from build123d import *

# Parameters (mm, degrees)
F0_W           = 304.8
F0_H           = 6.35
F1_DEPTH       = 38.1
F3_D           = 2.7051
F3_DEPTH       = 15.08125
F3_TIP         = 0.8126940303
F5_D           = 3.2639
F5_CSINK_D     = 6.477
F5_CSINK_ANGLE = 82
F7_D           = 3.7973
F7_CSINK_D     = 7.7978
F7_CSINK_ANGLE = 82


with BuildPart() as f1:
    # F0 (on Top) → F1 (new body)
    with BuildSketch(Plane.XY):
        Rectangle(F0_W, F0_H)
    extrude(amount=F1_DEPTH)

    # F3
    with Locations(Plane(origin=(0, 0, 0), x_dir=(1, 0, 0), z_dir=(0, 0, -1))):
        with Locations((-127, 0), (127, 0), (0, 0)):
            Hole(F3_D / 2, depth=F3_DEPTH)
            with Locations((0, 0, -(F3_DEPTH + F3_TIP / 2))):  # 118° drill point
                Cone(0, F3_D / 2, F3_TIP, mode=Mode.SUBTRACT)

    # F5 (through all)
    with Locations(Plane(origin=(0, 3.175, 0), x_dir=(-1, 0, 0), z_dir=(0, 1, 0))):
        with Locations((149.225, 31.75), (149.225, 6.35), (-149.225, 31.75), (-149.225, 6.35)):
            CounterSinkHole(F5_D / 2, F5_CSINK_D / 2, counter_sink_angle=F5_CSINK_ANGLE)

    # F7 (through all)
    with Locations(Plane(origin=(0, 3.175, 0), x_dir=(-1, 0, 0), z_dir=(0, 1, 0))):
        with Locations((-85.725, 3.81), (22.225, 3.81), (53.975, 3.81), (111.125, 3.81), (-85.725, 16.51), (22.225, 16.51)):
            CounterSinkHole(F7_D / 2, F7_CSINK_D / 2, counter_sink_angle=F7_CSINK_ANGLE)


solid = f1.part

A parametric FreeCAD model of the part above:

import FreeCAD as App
import Part
import Sketcher
from FreeCAD import Vector
Q = App.Units.Quantity

doc = App.newDocument("Part")
body = doc.addObject("PartDesign::Body", "Body")

# Sketch on XY plane
sketch1 = doc.addObject("Sketcher::SketchObject", "Sketch")
body.addObject(sketch1)
sketch1.AttachmentSupport = (doc.XY_Plane, [""])
sketch1.MapMode = "FlatFace"
sketch1.addGeometry([
    Part.LineSegment(Vector(-152.4, 3.175, 0), Vector(-152.4, -3.175, 0)),
    Part.LineSegment(Vector(-152.4, -3.175, 0), Vector(152.4, -3.175, 0)),
    Part.LineSegment(Vector(152.4, -3.175, 0), Vector(152.4, 3.175, 0)),
    Part.LineSegment(Vector(152.4, 3.175, 0), Vector(-152.4, 3.175, 0)),
], False)
sketch1.addConstraint([
    Sketcher.Constraint("Coincident", 0, 2, 1, 1),
    Sketcher.Constraint("Coincident", 1, 2, 2, 1),
    Sketcher.Constraint("Coincident", 2, 2, 3, 1),
    Sketcher.Constraint("Coincident", 3, 2, 0, 1),
    Sketcher.Constraint("Vertical", 0),
    Sketcher.Constraint("Horizontal", 1),
    Sketcher.Constraint("Vertical", 2),
    Sketcher.Constraint("Horizontal", 3),
    Sketcher.Constraint("Symmetric", 0, 2, 2, 2, -1, 1),
    Sketcher.Constraint("DistanceX", 1, 1, 1, 2, Q("12 in")),
    Sketcher.Constraint("DistanceY", 0, 2, 0, 1, Q("0.25 in")),
])
pad1 = doc.addObject("PartDesign::Pad", "Pad")
body.addObject(pad1)
pad1.Profile = sketch1
pad1.Length = Q("1.5 in")

# Sketch on XY plane
sketch2 = doc.addObject("Sketcher::SketchObject", "Sketch001")
body.addObject(sketch2)
sketch2.AttachmentSupport = (doc.XY_Plane, [""])
sketch2.MapMode = "FlatFace"
sketch2.addGeometry([
    Part.Circle(Vector(-127, 0, 0), Vector(0, 0, 1), 1.35255),
    Part.Circle(Vector(127, 0, 0), Vector(0, 0, 1), 1.35255),
    Part.Circle(Vector(0, 0, 0), Vector(0, 0, 1), 1.35255),
], False)
sketch2.addConstraint([
    Sketcher.Constraint("Coincident", 2, 3, -1, 1),
    Sketcher.Constraint("Equal", 0, 1),
    Sketcher.Constraint("Equal", 1, 2),
    Sketcher.Constraint("Symmetric", 0, 3, 1, 3, -1, 1),
    Sketcher.Constraint("PointOnObject", 0, 3, -1),
    Sketcher.Constraint("DistanceX", 0, 3, -1, 1, Q("5 in")),
    Sketcher.Constraint("Diameter", 0, Q("0.1065 in")),
])
doc.recompute()
hole = doc.addObject("PartDesign::Hole", "Hole")
body.addObject(hole)
hole.Profile = sketch2
hole.ThreadType = "None"
hole.Diameter = Q("0.1065 in")
hole.DepthType = "Dimension"
hole.Depth = Q("0.59375 in")
hole.DrillPoint = "Angled"
hole.DrillPointAngle = 118
hole.Reversed = True

# Sketch on XZ plane
sketch3 = doc.addObject("Sketcher::SketchObject", "Sketch002")
body.addObject(sketch3)
sketch3.AttachmentSupport = (doc.XZ_Plane, [""])
sketch3.MapMode = "FlatFace"
sketch3.AttachmentOffset = App.Placement(Vector(0, 0, -0.125 * 25.4), App.Rotation())
sketch3.addGeometry([
    Part.Circle(Vector(-149.225, 31.75, 0), Vector(0, 0, 1), 1.63195),
    Part.Circle(Vector(-149.225, 6.35, 0), Vector(0, 0, 1), 1.63195),
    Part.Circle(Vector(149.225, 31.75, 0), Vector(0, 0, 1), 1.63195),
    Part.Circle(Vector(149.225, 6.35, 0), Vector(0, 0, 1), 1.63195),
], False)
sketch3.addConstraint([
    Sketcher.Constraint("Equal", 0, 1),
    Sketcher.Constraint("Equal", 1, 2),
    Sketcher.Constraint("Equal", 2, 3),
    Sketcher.Constraint("Symmetric", 0, 3, 2, 3, -2),
    Sketcher.Constraint("Symmetric", 1, 3, 3, 3, -2),
    Sketcher.Constraint("Vertical", 0, 3, 1, 3),
    Sketcher.Constraint("DistanceY", 1, 3, 0, 3, Q("1 in")),
    Sketcher.Constraint("Diameter", 0, Q("0.1285 in")),
    Sketcher.Constraint("DistanceY", -1, 1, 0, 3, Q("1.25 in")),
    Sketcher.Constraint("DistanceX", 0, 3, 2, 3, Q("11.75 in")),
])
doc.recompute()
hole2 = doc.addObject("PartDesign::Hole", "Hole001")
body.addObject(hole2)
hole2.Profile = sketch3
hole2.ThreadType = "None"
hole2.Diameter = Q("0.1285 in")
hole2.DepthType = "ThroughAll"
hole2.HoleCutType = "Countersink"
hole2.HoleCutDiameter = Q("0.255 in")
hole2.HoleCutCountersinkAngle = 82
hole2.Reversed = True

# Sketch on XZ plane
sketch4 = doc.addObject("Sketcher::SketchObject", "Sketch003")
body.addObject(sketch4)
sketch4.AttachmentSupport = (doc.XZ_Plane, [""])
sketch4.MapMode = "FlatFace"
sketch4.AttachmentOffset = App.Placement(Vector(0, 0, -0.125 * 25.4), App.Rotation())
sketch4.addGeometry([
    Part.Circle(Vector(85.725, 3.81, 0), Vector(0, 0, 1), 1.89865),  # 0
    Part.Circle(Vector(-22.225, 3.81, 0), Vector(0, 0, 1), 1.89865),  # 1
    Part.Circle(Vector(-53.975, 3.81, 0), Vector(0, 0, 1), 1.89865),  # 2
    Part.Circle(Vector(-111.125, 3.81, 0), Vector(0, 0, 1), 1.89865),  # 3
    Part.Circle(Vector(85.725, 16.51, 0), Vector(0, 0, 1), 1.89865),  # 4
    Part.Circle(Vector(-22.225, 16.51, 0), Vector(0, 0, 1), 1.89865),  # 5
], False)
sketch4.addConstraint([
    Sketcher.Constraint("Equal", 0, 1),
    Sketcher.Constraint("Equal", 1, 2),
    Sketcher.Constraint("Equal", 2, 3),
    Sketcher.Constraint("Equal", 3, 4),
    Sketcher.Constraint("Equal", 4, 5),
    Sketcher.Constraint("Horizontal", 0, 3, 1, 3),
    Sketcher.Constraint("Horizontal", 1, 3, 2, 3),
    Sketcher.Constraint("Horizontal", 2, 3, 3, 3),
    Sketcher.Constraint("Horizontal", 4, 3, 5, 3),
    Sketcher.Constraint("Vertical", 0, 3, 4, 3),
    Sketcher.Constraint("Vertical", 1, 3, 5, 3),
    Sketcher.Constraint("Diameter", 0, Q("0.1495 in")),
    Sketcher.Constraint("DistanceX", 2, 3, 0, 3, Q("5.5 in")),
    Sketcher.Constraint("DistanceX", 3, 3, 1, 3, Q("3.5 in")),
    Sketcher.Constraint("DistanceY", 0, 3, 4, 3, Q("0.5 in")),
    Sketcher.Constraint("DistanceY", -1, 1, 0, 3, Q("0.15 in")),
    Sketcher.Constraint("DistanceX", 1, 3, 0, 3, Q("4.25 in")),
    Sketcher.Constraint("DistanceX", -1, 1, 0, 3, Q("3.375 in")),
])
doc.recompute()
hole3 = doc.addObject("PartDesign::Hole", "Hole002")
body.addObject(hole3)
hole3.Profile = sketch4
hole3.ThreadType = "None"
hole3.Diameter = Q("0.1495 in")
hole3.DepthType = "ThroughAll"
hole3.HoleCutType = "Countersink"
hole3.HoleCutDiameter = Q("0.307 in")
hole3.HoleCutCountersinkAngle = 82
hole3.Reversed = True

doc.recompute()
